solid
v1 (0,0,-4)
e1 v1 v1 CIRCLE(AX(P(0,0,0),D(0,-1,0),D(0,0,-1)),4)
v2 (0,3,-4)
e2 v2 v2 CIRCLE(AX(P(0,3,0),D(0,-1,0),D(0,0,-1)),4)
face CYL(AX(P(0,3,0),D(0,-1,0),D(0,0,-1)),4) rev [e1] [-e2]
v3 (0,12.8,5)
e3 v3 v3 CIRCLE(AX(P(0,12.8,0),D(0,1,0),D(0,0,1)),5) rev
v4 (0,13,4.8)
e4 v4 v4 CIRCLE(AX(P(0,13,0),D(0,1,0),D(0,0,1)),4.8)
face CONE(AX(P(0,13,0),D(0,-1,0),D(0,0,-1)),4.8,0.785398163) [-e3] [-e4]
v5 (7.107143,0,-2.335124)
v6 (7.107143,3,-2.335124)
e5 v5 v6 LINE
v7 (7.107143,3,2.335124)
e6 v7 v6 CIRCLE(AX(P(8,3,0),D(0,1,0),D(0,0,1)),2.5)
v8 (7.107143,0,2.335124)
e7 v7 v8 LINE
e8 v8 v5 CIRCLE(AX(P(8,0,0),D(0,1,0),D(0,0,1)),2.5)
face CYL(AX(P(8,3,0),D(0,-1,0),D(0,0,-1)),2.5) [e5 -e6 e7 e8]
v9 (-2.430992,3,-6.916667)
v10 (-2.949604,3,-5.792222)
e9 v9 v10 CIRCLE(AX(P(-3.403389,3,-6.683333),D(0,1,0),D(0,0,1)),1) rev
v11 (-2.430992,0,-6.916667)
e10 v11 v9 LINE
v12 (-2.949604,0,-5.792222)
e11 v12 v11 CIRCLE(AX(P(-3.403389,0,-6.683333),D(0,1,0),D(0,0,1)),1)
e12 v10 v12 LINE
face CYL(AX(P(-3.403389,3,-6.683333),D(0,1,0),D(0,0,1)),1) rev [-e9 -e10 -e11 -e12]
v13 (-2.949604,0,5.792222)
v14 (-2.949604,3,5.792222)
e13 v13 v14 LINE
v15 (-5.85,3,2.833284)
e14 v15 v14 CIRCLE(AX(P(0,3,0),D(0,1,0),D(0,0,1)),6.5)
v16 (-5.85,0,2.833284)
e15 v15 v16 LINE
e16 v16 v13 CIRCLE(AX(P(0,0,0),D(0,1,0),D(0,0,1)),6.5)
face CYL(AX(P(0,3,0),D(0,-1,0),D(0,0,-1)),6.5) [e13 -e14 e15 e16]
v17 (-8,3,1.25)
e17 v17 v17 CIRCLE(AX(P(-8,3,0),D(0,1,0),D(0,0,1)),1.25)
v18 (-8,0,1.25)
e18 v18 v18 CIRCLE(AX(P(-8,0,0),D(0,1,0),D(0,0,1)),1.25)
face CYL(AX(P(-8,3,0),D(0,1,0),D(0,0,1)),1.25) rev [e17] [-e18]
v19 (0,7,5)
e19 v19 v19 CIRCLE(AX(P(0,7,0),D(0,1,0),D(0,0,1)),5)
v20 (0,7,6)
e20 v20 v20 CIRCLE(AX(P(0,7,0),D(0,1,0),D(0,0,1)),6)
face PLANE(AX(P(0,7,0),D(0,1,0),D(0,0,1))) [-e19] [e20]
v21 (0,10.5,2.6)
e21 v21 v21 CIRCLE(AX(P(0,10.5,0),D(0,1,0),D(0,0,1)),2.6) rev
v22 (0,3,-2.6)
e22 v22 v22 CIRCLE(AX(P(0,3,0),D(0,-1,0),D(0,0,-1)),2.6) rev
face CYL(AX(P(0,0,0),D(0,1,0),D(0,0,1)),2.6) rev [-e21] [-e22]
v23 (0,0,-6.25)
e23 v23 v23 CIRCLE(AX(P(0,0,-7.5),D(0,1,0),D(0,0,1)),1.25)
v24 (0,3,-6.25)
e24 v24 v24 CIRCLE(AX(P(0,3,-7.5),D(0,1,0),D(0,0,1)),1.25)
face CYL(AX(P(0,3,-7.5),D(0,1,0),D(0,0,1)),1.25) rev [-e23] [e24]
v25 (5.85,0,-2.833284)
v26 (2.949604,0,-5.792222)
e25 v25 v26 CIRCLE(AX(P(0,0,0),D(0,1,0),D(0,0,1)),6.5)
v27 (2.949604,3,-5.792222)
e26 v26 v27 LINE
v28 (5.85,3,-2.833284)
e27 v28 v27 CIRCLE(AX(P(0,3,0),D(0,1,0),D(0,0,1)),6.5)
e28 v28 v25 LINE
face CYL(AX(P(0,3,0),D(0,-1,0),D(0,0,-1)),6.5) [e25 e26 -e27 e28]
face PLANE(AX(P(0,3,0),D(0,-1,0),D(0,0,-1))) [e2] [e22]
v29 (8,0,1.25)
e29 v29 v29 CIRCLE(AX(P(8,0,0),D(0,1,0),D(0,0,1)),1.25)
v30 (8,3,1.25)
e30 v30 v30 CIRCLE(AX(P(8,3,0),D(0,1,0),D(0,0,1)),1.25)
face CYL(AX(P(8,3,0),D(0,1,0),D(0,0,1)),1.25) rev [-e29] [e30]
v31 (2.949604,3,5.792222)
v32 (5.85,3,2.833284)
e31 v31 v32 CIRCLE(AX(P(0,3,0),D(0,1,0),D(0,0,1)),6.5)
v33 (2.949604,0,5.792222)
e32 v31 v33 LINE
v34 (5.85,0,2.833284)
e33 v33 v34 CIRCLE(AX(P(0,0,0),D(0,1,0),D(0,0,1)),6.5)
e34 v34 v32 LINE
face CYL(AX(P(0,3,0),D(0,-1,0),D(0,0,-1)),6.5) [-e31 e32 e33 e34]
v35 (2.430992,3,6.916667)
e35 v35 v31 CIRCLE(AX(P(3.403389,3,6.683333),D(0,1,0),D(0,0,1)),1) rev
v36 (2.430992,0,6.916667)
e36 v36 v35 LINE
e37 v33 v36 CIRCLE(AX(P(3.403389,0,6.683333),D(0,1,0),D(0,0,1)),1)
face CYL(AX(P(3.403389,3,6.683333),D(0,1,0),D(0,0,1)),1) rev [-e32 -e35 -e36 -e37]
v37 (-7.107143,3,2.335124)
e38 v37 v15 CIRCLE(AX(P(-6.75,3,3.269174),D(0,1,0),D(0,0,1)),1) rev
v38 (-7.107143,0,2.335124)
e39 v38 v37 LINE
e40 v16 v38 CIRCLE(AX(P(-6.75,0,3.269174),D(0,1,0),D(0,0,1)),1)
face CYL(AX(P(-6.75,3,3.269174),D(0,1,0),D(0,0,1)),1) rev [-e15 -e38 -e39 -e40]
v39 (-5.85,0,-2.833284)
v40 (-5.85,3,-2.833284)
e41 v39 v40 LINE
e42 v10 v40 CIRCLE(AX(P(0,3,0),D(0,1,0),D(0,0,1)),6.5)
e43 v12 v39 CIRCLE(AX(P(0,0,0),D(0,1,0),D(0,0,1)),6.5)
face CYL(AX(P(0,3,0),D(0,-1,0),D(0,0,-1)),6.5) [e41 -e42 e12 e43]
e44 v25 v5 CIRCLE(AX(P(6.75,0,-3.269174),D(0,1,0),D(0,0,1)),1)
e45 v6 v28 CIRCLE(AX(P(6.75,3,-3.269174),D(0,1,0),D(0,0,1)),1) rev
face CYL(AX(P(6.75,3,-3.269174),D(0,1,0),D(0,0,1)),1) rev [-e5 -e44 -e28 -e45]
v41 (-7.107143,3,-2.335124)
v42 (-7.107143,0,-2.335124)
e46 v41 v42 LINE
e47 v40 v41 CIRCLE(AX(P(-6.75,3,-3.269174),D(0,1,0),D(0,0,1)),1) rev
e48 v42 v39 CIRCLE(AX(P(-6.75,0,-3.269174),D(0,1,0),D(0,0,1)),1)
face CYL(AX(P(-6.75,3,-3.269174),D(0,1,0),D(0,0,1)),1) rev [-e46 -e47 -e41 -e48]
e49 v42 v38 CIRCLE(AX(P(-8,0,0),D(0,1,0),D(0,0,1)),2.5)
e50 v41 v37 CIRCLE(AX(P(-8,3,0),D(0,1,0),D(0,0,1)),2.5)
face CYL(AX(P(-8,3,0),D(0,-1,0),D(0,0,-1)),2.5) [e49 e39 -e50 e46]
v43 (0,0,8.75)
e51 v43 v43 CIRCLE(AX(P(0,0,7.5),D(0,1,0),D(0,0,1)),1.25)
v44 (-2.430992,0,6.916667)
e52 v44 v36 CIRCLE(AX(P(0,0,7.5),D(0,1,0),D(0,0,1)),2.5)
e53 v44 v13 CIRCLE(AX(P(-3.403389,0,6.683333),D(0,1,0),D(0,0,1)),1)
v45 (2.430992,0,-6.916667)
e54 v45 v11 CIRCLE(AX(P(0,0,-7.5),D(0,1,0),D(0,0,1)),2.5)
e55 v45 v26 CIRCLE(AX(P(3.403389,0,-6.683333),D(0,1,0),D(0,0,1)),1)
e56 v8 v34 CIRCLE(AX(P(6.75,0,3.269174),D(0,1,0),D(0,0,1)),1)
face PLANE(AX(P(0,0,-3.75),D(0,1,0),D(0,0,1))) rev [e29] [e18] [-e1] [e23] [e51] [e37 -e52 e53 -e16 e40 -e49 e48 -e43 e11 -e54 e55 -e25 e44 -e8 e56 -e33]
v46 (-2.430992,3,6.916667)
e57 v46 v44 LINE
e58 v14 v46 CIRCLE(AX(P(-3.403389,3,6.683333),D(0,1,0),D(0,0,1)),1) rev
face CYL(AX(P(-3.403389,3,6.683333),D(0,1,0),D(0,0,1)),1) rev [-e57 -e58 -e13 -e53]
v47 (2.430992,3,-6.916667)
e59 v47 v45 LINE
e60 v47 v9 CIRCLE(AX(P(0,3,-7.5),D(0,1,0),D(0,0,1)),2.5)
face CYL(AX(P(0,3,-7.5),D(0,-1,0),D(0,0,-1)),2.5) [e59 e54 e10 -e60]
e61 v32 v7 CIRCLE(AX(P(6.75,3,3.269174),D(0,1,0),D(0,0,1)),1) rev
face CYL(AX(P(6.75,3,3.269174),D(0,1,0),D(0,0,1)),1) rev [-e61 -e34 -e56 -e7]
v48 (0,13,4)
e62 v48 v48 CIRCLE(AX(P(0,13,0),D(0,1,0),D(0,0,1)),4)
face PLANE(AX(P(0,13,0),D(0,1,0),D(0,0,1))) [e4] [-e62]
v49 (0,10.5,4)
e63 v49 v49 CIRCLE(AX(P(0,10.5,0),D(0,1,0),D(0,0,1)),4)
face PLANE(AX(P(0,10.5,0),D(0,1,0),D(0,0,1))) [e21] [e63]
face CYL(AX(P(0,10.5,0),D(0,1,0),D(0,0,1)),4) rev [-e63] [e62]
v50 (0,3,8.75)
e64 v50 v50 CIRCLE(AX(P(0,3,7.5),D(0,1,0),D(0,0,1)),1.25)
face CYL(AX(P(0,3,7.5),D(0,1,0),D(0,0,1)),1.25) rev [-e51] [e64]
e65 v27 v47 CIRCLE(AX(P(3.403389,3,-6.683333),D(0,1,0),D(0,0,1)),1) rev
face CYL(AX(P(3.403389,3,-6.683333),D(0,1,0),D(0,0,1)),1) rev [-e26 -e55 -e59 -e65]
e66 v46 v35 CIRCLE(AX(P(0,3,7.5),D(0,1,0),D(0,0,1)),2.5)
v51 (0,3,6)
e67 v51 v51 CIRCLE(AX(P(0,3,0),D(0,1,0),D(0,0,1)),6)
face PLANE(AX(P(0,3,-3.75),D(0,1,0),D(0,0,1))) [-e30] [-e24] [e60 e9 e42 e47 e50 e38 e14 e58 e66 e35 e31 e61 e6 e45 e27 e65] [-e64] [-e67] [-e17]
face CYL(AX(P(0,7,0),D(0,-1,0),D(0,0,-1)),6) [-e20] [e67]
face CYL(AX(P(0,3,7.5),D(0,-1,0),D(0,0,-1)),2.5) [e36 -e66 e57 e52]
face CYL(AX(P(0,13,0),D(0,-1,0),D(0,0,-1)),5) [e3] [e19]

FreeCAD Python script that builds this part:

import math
import FreeCAD as App
import Part
import Sketcher

V = App.Vector
Q = App.Units.Quantity


def edges_at(feature, points):
    """Names of the edges that pass closest to the given points."""
    edges = feature.Shape.Edges
    near = lambda p: min(range(len(edges)), key=lambda i: edges[i].distToShape(Part.Vertex(*p))[0])
    return sorted({f"Edge{near(p) + 1}" for p in points})

doc = App.newDocument("Part")
params = doc.addObject("Spreadsheet::Sheet", "Params")
for row, (alias, value) in enumerate([
    ("sketch1_radius", "6.5 mm"),
    ("sketch1_radius2", "2.5 mm"),
    ("pad1_length", "3 mm"),
    ("sketch2_diameter", "12 mm"),
    ("pad2_length", "4 mm"),
    ("sketch3_diameter", "10 mm"),
    ("pad3_length", "6 mm"),
    ("sketch4_diameter", "5.2 mm"),
    ("sketch5_diameter", "8 mm"),
    ("pocket2_length", "2.5 mm"),
    ("sketch6_diameter", "8 mm"),
    ("pocket3_length", "3 mm"),
    ("sketch7_diameter", "2.5 mm"),
    ("hole_diameter", "2.5 mm"),
    ("chamfer_size", "0.2 mm"),
    ("fillet_radius", "1 mm"),
], start=1):
    params.set(f"A{row}", alias)
    params.set(f"B{row}", "=" + value)
    params.setAlias(f"B{row}", alias)

body = doc.addObject("PartDesign::Body", "Body")

sketch1 = doc.addObject("Sketcher::SketchObject", "Sketch")
body.addObject(sketch1)
sketch1.AttachmentSupport = (doc.XZ_Plane, [""])
sketch1.MapMode = "FlatFace"
sketch1.addGeometry(Part.ArcOfCircle(Part.Circle(V(0, 0, 0), V(0, 0, 1), 6.5), math.radians(-164), math.radians(-109)), False)
sketch1.addGeometry(Part.ArcOfCircle(Part.Circle(V(-8, 0, 0), V(0, 0, 1), 2.5), math.radians(46), math.radians(314)), False)
sketch1.addGeometry(Part.ArcOfCircle(Part.Circle(V(0, 0, 0), V(0, 0, 1), 6.5), math.radians(109), math.radians(164)), False)
sketch1.addGeometry(Part.ArcOfCircle(Part.Circle(V(0, 7.5, 0), V(0, 0, 1), 2.5), math.radians(-33), math.radians(213)), False)
sketch1.addGeometry(Part.ArcOfCircle(Part.Circle(V(0, 0, 0), V(0, 0, 1), 6.5), math.radians(16), math.radians(71)), False)
sketch1.addGeometry(Part.ArcOfCircle(Part.Circle(V(8, 0, 0), V(0, 0, 1), 2.5), math.radians(-134), math.radians(134)), False)
sketch1.addGeometry(Part.ArcOfCircle(Part.Circle(V(0, 0, 0), V(0, 0, 1), 6.5), math.radians(-71), math.radians(-16)), False)
sketch1.addGeometry(Part.ArcOfCircle(Part.Circle(V(0, -7.5, 0), V(0, 0, 1), 2.5), math.radians(147), math.radians(393)), False)
sketch1.addConstraint(Sketcher.Constraint("Coincident", 0, 1, 1, 2))
sketch1.addConstraint(Sketcher.Constraint("Coincident", 1, 1, 2, 2))
sketch1.addConstraint(Sketcher.Constraint("Coincident", 2, 1, 3, 2))
sketch1.addConstraint(Sketcher.Constraint("Coincident", 3, 1, 4, 2))
sketch1.addConstraint(Sketcher.Constraint("Coincident", 4, 1, 5, 2))
sketch1.addConstraint(Sketcher.Constraint("Coincident", 5, 1, 6, 2))
sketch1.addConstraint(Sketcher.Constraint("Coincident", 6, 1, 7, 2))
sketch1.addConstraint(Sketcher.Constraint("Coincident", 7, 1, 0, 2))
sketch1.addConstraint(Sketcher.Constraint("Coincident", 0, 3, -1, 1))
sketch1.addConstraint(Sketcher.Constraint("Coincident", 2, 3, -1, 1))
sketch1.addConstraint(Sketcher.Constraint("Coincident", 4, 3, -1, 1))
sketch1.addConstraint(Sketcher.Constraint("Coincident", 6, 3, -1, 1))
sketch1.addConstraint(Sketcher.Constraint("Equal", 0, 2))
sketch1.addConstraint(Sketcher.Constraint("Equal", 1, 3))
sketch1.addConstraint(Sketcher.Constraint("Equal", 2, 4))
sketch1.addConstraint(Sketcher.Constraint("Equal", 3, 5))
sketch1.addConstraint(Sketcher.Constraint("Equal", 4, 6))
sketch1.addConstraint(Sketcher.Constraint("Equal", 5, 7))
sketch1.addConstraint(Sketcher.Constraint("Symmetric", 1, 3, 5, 3, -1, 1))
sketch1.addConstraint(Sketcher.Constraint("Symmetric", 3, 3, 7, 3, -1, 1))
sketch1.addConstraint(Sketcher.Constraint("PointOnObject", 1, 3, -1))
sketch1.addConstraint(Sketcher.Constraint("PointOnObject", 3, 3, -2))
sketch1.addConstraint(Sketcher.Constraint("Radius", 0, Q("6.5 mm")))
sketch1.addConstraint(Sketcher.Constraint("Radius", 1, Q("2.5 mm")))
sketch1.addConstraint(Sketcher.Constraint("DistanceX", 1, 3, -1, 1, Q("8 mm")))
sketch1.addConstraint(Sketcher.Constraint("DistanceY", -1, 1, 3, 3, Q("7.5 mm")))
sketch1.setExpression("Constraints[22]", "Params.sketch1_radius")
sketch1.setExpression("Constraints[23]", "Params.sketch1_radius2")
pad1 = doc.addObject("PartDesign::Pad", "Pad")
body.addObject(pad1)
pad1.Profile = sketch1
pad1.setExpression("Length", "Params.pad1_length")
pad1.Reversed = True

sketch2 = doc.addObject("Sketcher::SketchObject", "Sketch001")
body.addObject(sketch2)
sketch2.AttachmentSupport = (doc.XZ_Plane, [""])
sketch2.MapMode = "FlatFace"
sketch2.AttachmentOffset = App.Placement(V(0, 0, -3), App.Rotation())
sketch2.addGeometry(Part.Circle(V(0, 0, 0), V(0, 0, 1), 6), False)
sketch2.addConstraint(Sketcher.Constraint("Coincident", 0, 3, -1, 1))
sketch2.addConstraint(Sketcher.Constraint("Diameter", 0, Q("12 mm")))
sketch2.setExpression("Constraints[1]", "Params.sketch2_diameter")
pad2 = doc.addObject("PartDesign::Pad", "Pad001")
body.addObject(pad2)
pad2.Profile = sketch2
pad2.setExpression("Length", "Params.pad2_length")
pad2.Reversed = True

sketch3 = doc.addObject("Sketcher::SketchObject", "Sketch002")
body.addObject(sketch3)
sketch3.AttachmentSupport = (doc.XZ_Plane, [""])
sketch3.MapMode = "FlatFace"
sketch3.AttachmentOffset = App.Placement(V(0, 0, -7), App.Rotation())
sketch3.addGeometry(Part.Circle(V(0, 0, 0), V(0, 0, 1), 5), False)
sketch3.addConstraint(Sketcher.Constraint("Coincident", 0, 3, -1, 1))
sketch3.addConstraint(Sketcher.Constraint("Diameter", 0, Q("10 mm")))
sketch3.setExpression("Constraints[1]", "Params.sketch3_diameter")
pad3 = doc.addObject("PartDesign::Pad", "Pad002")
body.addObject(pad3)
pad3.Profile = sketch3
pad3.setExpression("Length", "Params.pad3_length")
pad3.Reversed = True

sketch4 = doc.addObject("Sketcher::SketchObject", "Sketch003")
body.addObject(sketch4)
sketch4.AttachmentSupport = (doc.XZ_Plane, [""])
sketch4.MapMode = "FlatFace"
sketch4.AttachmentOffset = App.Placement(V(0, 0, -13), App.Rotation())
sketch4.addGeometry(Part.Circle(V(0, 0, 0), V(0, 0, 1), 2.6), False)
sketch4.addConstraint(Sketcher.Constraint("Coincident", 0, 3, -1, 1))
sketch4.addConstraint(Sketcher.Constraint("Diameter", 0, Q("5.2 mm")))
sketch4.setExpression("Constraints[1]", "Params.sketch4_diameter")
pocket1 = doc.addObject("PartDesign::Pocket", "Pocket")
body.addObject(pocket1)
pocket1.Profile = sketch4
pocket1.Type = "ThroughAll"
pocket1.Reversed = True

sketch5 = doc.addObject("Sketcher::SketchObject", "Sketch004")
body.addObject(sketch5)
sketch5.AttachmentSupport = (doc.XZ_Plane, [""])
sketch5.MapMode = "FlatFace"
sketch5.AttachmentOffset = App.Placement(V(0, 0, -13), App.Rotation())
sketch5.addGeometry(Part.Circle(V(0, 0, 0), V(0, 0, 1), 4), False)
sketch5.addConstraint(Sketcher.Constraint("Coincident", 0, 3, -1, 1))
sketch5.addConstraint(Sketcher.Constraint("Diameter", 0, Q("8 mm")))
sketch5.setExpression("Constraints[1]", "Params.sketch5_diameter")
pocket2 = doc.addObject("PartDesign::Pocket", "Pocket001")
body.addObject(pocket2)
pocket2.Profile = sketch5
pocket2.setExpression("Length", "Params.pocket2_length")
pocket2.Reversed = True

sketch6 = doc.addObject("Sketcher::SketchObject", "Sketch005")
body.addObject(sketch6)
sketch6.AttachmentSupport = (doc.XZ_Plane, [""])
sketch6.MapMode = "FlatFace"
sketch6.AttachmentOffset = App.Placement(V(0, 0, -3), App.Rotation())
sketch6.addGeometry(Part.Circle(V(0, 0, 0), V(0, 0, 1), 4), False)
sketch6.addConstraint(Sketcher.Constraint("Coincident", 0, 3, -1, 1))
sketch6.addConstraint(Sketcher.Constraint("Diameter", 0, Q("8 mm")))
sketch6.setExpression("Constraints[1]", "Params.sketch6_diameter")
pocket3 = doc.addObject("PartDesign::Pocket", "Pocket002")
body.addObject(pocket3)
pocket3.Profile = sketch6
pocket3.setExpression("Length", "Params.pocket3_length")
pocket3.Reversed = True

sketch7 = doc.addObject("Sketcher::SketchObject", "Sketch006")
body.addObject(sketch7)
sketch7.AttachmentSupport = (doc.XZ_Plane, [""])
sketch7.MapMode = "FlatFace"
sketch7.AttachmentOffset = App.Placement(V(0, 0, -3), App.Rotation())
sketch7.addGeometry(Part.Circle(V(0, -7.5, 0), V(0, 0, 1), 1.2), False)
sketch7.addGeometry(Part.Circle(V(8, 0, 0), V(0, 0, 1), 1.2), False)
sketch7.addGeometry(Part.Circle(V(0, 7.5, 0), V(0, 0, 1), 1.2), False)
sketch7.addGeometry(Part.Circle(V(-8, 0, 0), V(0, 0, 1), 1.2), False)
sketch7.addConstraint(Sketcher.Constraint("Equal", 0, 1))
sketch7.addConstraint(Sketcher.Constraint("Equal", 1, 2))
sketch7.addConstraint(Sketcher.Constraint("Equal", 2, 3))
sketch7.addConstraint(Sketcher.Constraint("Symmetric", 0, 3, 2, 3, -1, 1))
sketch7.addConstraint(Sketcher.Constraint("Symmetric", 1, 3, 3, 3, -1, 1))
sketch7.addConstraint(Sketcher.Constraint("PointOnObject", 0, 3, -2))
sketch7.addConstraint(Sketcher.Constraint("PointOnObject", 1, 3, -1))
sketch7.addConstraint(Sketcher.Constraint("Diameter", 0, Q("2.5 mm")))
sketch7.addConstraint(Sketcher.Constraint("DistanceX", -1, 1, 1, 3, Q("8 mm")))
sketch7.addConstraint(Sketcher.Constraint("DistanceY", 0, 3, 2, 3, Q("15 mm")))
sketch7.setExpression("Constraints[7]", "Params.sketch7_diameter")
doc.recompute()
hole = doc.addObject("PartDesign::Hole", "Hole")
body.addObject(hole)
hole.Profile = sketch7
hole.ThreadType = "None"
hole.setExpression("Diameter", "Params.hole_diameter")
hole.DepthType = "ThroughAll"
hole.Reversed = True
doc.recompute()

chamfer = doc.addObject("PartDesign::Chamfer", "Chamfer")
body.addObject(chamfer)
chamfer.Base = (hole, edges_at(hole, [(0, 13, -5)]))
chamfer.setExpression("Size", "Params.chamfer_size")
doc.recompute()

fillet = doc.addObject("PartDesign::Fillet", "Fillet")
body.addObject(fillet)
fillet.Base = (chamfer, edges_at(chamfer, [
    (6.25, 1.5, -1.785),
    (6.25, 1.5, 1.785),
    (2.104, 1.5, 6.15),
    (-2.104, 1.5, 6.15),
    (-6.25, 1.5, 1.785),
    (-6.25, 1.5, -1.785),
    (-2.104, 1.5, -6.15),
    (2.104, 1.5, -6.15),
]))
fillet.setExpression("Radius", "Params.fillet_radius")

doc.recompute()
